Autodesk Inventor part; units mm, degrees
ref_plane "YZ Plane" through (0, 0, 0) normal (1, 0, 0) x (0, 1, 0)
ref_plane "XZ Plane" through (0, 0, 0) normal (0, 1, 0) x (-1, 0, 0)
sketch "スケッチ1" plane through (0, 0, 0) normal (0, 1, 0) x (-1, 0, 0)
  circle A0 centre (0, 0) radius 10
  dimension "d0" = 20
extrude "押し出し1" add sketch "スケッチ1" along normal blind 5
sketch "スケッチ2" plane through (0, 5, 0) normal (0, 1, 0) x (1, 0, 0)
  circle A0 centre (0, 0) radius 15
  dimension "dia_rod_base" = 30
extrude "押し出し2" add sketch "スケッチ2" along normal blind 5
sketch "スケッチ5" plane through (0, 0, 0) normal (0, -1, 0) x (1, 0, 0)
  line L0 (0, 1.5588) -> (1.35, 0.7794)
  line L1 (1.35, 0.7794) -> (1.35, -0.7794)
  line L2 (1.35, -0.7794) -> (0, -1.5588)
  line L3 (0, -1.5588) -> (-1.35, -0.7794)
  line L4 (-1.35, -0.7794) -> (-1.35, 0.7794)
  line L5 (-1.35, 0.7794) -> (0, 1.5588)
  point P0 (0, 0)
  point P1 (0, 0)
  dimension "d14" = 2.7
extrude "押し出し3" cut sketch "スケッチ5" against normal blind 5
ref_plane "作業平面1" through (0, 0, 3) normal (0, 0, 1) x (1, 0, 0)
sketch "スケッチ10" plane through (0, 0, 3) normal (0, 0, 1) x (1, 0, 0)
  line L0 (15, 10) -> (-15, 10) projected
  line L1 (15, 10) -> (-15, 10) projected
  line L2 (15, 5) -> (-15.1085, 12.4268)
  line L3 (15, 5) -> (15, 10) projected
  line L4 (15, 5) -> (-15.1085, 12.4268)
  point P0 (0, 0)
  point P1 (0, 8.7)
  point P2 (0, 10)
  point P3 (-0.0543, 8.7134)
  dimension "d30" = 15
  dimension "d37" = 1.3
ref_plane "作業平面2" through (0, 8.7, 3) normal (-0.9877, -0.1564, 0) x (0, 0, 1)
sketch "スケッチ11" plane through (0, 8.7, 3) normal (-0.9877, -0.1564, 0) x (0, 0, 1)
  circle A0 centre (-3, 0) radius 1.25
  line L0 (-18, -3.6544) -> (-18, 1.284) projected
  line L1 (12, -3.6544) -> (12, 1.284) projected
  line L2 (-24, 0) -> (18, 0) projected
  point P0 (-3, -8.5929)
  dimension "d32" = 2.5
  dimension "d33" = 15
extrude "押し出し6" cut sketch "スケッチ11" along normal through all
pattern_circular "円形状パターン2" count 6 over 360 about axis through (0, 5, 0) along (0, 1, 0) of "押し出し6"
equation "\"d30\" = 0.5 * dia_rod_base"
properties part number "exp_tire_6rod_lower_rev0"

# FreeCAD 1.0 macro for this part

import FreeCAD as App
import Part
import Sketcher

V = App.Vector
Q = App.Units.Quantity


def add_polygon(sketch, points):
    """Adds a closed chain of lines whose ends are joined by coincident constraints."""
    first, n = sketch.GeometryCount, len(points)
    for a, b in zip(points, points[1:] + points[:1]):
        sketch.addGeometry(Part.LineSegment(App.Vector(*a, 0), App.Vector(*b, 0)), False)
    for i in range(n):
        sketch.addConstraint(Sketcher.Constraint("Coincident", first + i, 2, first + (i + 1) % n, 1))

doc = App.newDocument("Part")
body = doc.addObject("PartDesign::Body", "Body")

# Sketch on XZ plane
sketch1 = body.newObject("Sketcher::SketchObject", "Sketch")
sketch1.AttachmentSupport = (doc.getObject("XZ_Plane"), [""])
sketch1.MapMode = "FlatFace"
sketch1.addGeometry(Part.Circle(V(0, 0, 0), V(0, 0, 1), 10), False)
sketch1.addConstraint([
    Sketcher.Constraint("Coincident", 0, 3, -1, 1),
    Sketcher.Constraint("Diameter", 0, 20.0),
])
pad1 = body.newObject("PartDesign::Pad", "Pad")
pad1.Profile = sketch1
pad1.Length = 5
pad1.Reversed = True

# Sketch on XZ plane
sketch2 = body.newObject("Sketcher::SketchObject", "Sketch001")
sketch2.AttachmentSupport = (doc.getObject("XZ_Plane"), [""])
sketch2.MapMode = "FlatFace"
sketch2.AttachmentOffset = App.Placement(V(0, 0, -5), App.Rotation())
sketch2.addGeometry(Part.Circle(V(0, 0, 0), V(0, 0, 1), 15), False)
sketch2.addConstraint([
    Sketcher.Constraint("Coincident", 0, 3, -1, 1),
    Sketcher.Constraint("Diameter", 0, 30.0),
])
pad2 = body.newObject("PartDesign::Pad", "Pad001")
pad2.Profile = sketch2
pad2.Length = 5
pad2.Reversed = True

# Sketch on XZ plane
sketch3 = body.newObject("Sketcher::SketchObject", "Sketch002")
sketch3.AttachmentSupport = (doc.getObject("XZ_Plane"), [""])
sketch3.MapMode = "FlatFace"
add_polygon(sketch3, [(1.35, 0.7794), (0, 1.5588), (-1.35, 0.7794), (-1.35, -0.7794), (0, -1.5588), (1.35, -0.7794)])  # lines 0-5
sketch3.addConstraint([
    Sketcher.Constraint("Vertical", 2),
    Sketcher.Constraint("Vertical", 5),
    Sketcher.Constraint("Symmetric", 0, 2, 3, 2, -1, 1),
    Sketcher.Constraint("Symmetric", 1, 2, 4, 2, -1, 1),
    Sketcher.Constraint("PointOnObject", 0, 2, -2),
    Sketcher.Constraint("Parallel", 0, 3),
    Sketcher.Constraint("Horizontal", 2, 2, 4, 2),
    Sketcher.Constraint("DistanceX", 2, 2, 4, 2, 2.7),
    Sketcher.Constraint("Angle", 0, Q("150.0007 deg")),
    Sketcher.Constraint("DistanceY", 2, 2, 2, 1, 1.5588),
])
pocket1 = body.newObject("PartDesign::Pocket", "Pocket")
pocket1.Profile = sketch3
pocket1.Length = 5

# Sketch on an angled plane
sketch4 = body.newObject("Sketcher::SketchObject", "Sketch003")
sketch4.Placement = App.Placement(V(0, 8.7, 3), App.Rotation(V(0, 0, 1), V(-0.156434465, 0.987688341, 0), V(-0.987688341, -0.156434465, 0), "ZXY"))
sketch4.addGeometry(Part.Circle(V(-3, 0, 0), V(0, 0, 1), 1.25), False)
sketch4.addConstraint([
    Sketcher.Constraint("PointOnObject", 0, 3, -1),
    Sketcher.Constraint("Diameter", 0, 2.5),
    Sketcher.Constraint("DistanceX", 0, 3, -1, 1, 3.0),
])
pocket2 = body.newObject("PartDesign::Pocket", "Pocket001")
pocket2.Profile = sketch4
pocket2.Type = "ThroughAll"
pocket2.Reversed = True
doc.recompute()

polarpattern = body.newObject("PartDesign::PolarPattern", "PolarPattern")
polarpattern.Originals = [pocket2]
polarpattern.Axis = (doc.getObject("Y_Axis"), [""])
polarpattern.Angle = 360
polarpattern.Occurrences = 6
body.Tip = polarpattern

doc.recompute()
